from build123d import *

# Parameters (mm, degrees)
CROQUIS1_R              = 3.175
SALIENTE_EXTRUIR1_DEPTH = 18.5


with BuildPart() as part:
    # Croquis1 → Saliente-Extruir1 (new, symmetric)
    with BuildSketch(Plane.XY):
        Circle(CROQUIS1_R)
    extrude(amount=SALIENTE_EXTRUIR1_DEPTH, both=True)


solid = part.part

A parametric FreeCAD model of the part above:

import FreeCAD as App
import Part
import Sketcher
from FreeCAD import Vector
Q = App.Units.Quantity

doc = App.newDocument("Part")
body = doc.addObject("PartDesign::Body", "Body")

sketch1 = body.newObject("Sketcher::SketchObject", "Sketch")
sketch1.AttachmentSupport = (doc.getObject("XY_Plane"), [""])
sketch1.MapMode = "FlatFace"
sketch1.addGeometry(Part.Circle(Vector(0, 0, 0), Vector(0, 0, 1), 3.2), False)
sketch1.addConstraint(Sketcher.Constraint("Coincident", 0, 3, -1, 1))
sketch1.addConstraint(Sketcher.Constraint("Diameter", 0, Q("6.35 mm")))
pad1 = body.newObject("PartDesign::Pad", "Pad")
pad1.Profile = sketch1
pad1.Length = 37
pad1.Midplane = True

doc.recompute()
